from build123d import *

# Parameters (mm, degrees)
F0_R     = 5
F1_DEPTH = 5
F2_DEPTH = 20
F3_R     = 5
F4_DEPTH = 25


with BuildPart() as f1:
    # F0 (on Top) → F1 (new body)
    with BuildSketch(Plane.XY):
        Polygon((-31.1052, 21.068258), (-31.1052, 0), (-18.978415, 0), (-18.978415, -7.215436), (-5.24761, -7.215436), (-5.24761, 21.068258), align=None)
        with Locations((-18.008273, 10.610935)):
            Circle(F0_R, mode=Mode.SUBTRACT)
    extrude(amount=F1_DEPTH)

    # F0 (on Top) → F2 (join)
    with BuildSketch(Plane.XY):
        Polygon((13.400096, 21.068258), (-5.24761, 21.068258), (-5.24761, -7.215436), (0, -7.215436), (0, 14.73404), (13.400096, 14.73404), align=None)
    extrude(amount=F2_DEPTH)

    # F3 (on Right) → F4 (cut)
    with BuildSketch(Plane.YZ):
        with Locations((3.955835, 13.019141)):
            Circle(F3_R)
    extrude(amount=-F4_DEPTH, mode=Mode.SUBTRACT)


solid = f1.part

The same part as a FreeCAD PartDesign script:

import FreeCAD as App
import Part
import Sketcher
from FreeCAD import Vector


def add_polygon(sketch, points):
    """Adds a closed chain of lines whose ends are joined by coincident constraints."""
    first, n = sketch.GeometryCount, len(points)
    for a, b in zip(points, points[1:] + points[:1]):
        sketch.addGeometry(Part.LineSegment(App.Vector(*a, 0), App.Vector(*b, 0)), False)
    for i in range(n):
        sketch.addConstraint(Sketcher.Constraint("Coincident", first + i, 2, first + (i + 1) % n, 1))

doc = App.newDocument("Part")
body = doc.addObject("PartDesign::Body", "Body")

# Sketch on XY plane
sketch1 = body.newObject("Sketcher::SketchObject", "Sketch")
sketch1.AttachmentSupport = (doc.getObject("XY_Plane"), [""])
sketch1.MapMode = "FlatFace"
add_polygon(sketch1, [(-31.1052, 21.068258), (-31.1052, 0), (-18.978415, 0), (-18.978415, -7.215436), (-5.24761, -7.215436), (-5.24761, 21.068258)])  # lines 0-5
sketch1.addGeometry(Part.Circle(Vector(-18.008273, 10.610935, 0), Vector(0, 0, 1), 5), False)  # 6
sketch1.addConstraint([
    Sketcher.Constraint("Vertical", 0),
    Sketcher.Constraint("Horizontal", 1),
    Sketcher.Constraint("Vertical", 2),
    Sketcher.Constraint("Horizontal", 3),
    Sketcher.Constraint("Vertical", 4),
    Sketcher.Constraint("Horizontal", 5),
    Sketcher.Constraint("PointOnObject", 0, 2, -1),
    Sketcher.Constraint("Diameter", 6, 10.0),
    Sketcher.Constraint("DistanceX", 5, 2, 5, 1, 25.85759),
    Sketcher.Constraint("DistanceY", 0, 2, 0, 1, 21.068258),
    Sketcher.Constraint("DistanceX", 0, 2, -1, 1, 31.1052),
    Sketcher.Constraint("DistanceX", 1, 1, 1, 2, 12.126785),
    Sketcher.Constraint("DistanceY", 2, 2, 2, 1, 7.215436),
    Sketcher.Constraint("DistanceX", 1, 2, 6, 3, 0.970142),
    Sketcher.Constraint("DistanceY", 2, 2, 6, 3, 17.826371),
])
pad1 = body.newObject("PartDesign::Pad", "Pad")
pad1.Profile = sketch1
pad1.Length = 5

# Sketch on XY plane
sketch2 = body.newObject("Sketcher::SketchObject", "Sketch001")
sketch2.AttachmentSupport = (doc.getObject("XY_Plane"), [""])
sketch2.MapMode = "FlatFace"
add_polygon(sketch2, [(13.400096, 21.068258), (-5.24761, 21.068258), (-5.24761, -7.215436), (0, -7.215436), (0, 14.73404), (13.400096, 14.73404)])  # lines 0-5
sketch2.addConstraint([
    Sketcher.Constraint("Horizontal", 0),
    Sketcher.Constraint("Vertical", 1),
    Sketcher.Constraint("Horizontal", 2),
    Sketcher.Constraint("Vertical", 3),
    Sketcher.Constraint("Horizontal", 4),
    Sketcher.Constraint("Vertical", 5),
    Sketcher.Constraint("PointOnObject", 2, 2, -2),
    Sketcher.Constraint("DistanceX", 2, 1, 2, 2, 5.24761),
    Sketcher.Constraint("DistanceX", 0, 2, 0, 1, 18.647706),
    Sketcher.Constraint("DistanceY", 1, 2, 1, 1, 28.283694),
    Sketcher.Constraint("DistanceY", 3, 1, 3, 2, 21.949476),
    Sketcher.Constraint("DistanceY", -1, 1, 0, 2, 21.068258),
])
pad2 = body.newObject("PartDesign::Pad", "Pad001")
pad2.Profile = sketch2
pad2.Length = 20

# Sketch on YZ plane
sketch3 = body.newObject("Sketcher::SketchObject", "Sketch002")
sketch3.AttachmentSupport = (doc.getObject("YZ_Plane"), [""])
sketch3.MapMode = "FlatFace"
sketch3.addGeometry(Part.Circle(Vector(3.955835, 13.019141, 0), Vector(0, 0, 1), 5), False)
sketch3.addConstraint([
    Sketcher.Constraint("Diameter", 0, 10.0),
    Sketcher.Constraint("DistanceY", -1, 1, 0, 3, 13.019141),
    Sketcher.Constraint("DistanceX", -1, 1, 0, 3, 3.955835),
])
pocket1 = body.newObject("PartDesign::Pocket", "Pocket")
pocket1.Profile = sketch3
pocket1.Length = 25

doc.recompute()
